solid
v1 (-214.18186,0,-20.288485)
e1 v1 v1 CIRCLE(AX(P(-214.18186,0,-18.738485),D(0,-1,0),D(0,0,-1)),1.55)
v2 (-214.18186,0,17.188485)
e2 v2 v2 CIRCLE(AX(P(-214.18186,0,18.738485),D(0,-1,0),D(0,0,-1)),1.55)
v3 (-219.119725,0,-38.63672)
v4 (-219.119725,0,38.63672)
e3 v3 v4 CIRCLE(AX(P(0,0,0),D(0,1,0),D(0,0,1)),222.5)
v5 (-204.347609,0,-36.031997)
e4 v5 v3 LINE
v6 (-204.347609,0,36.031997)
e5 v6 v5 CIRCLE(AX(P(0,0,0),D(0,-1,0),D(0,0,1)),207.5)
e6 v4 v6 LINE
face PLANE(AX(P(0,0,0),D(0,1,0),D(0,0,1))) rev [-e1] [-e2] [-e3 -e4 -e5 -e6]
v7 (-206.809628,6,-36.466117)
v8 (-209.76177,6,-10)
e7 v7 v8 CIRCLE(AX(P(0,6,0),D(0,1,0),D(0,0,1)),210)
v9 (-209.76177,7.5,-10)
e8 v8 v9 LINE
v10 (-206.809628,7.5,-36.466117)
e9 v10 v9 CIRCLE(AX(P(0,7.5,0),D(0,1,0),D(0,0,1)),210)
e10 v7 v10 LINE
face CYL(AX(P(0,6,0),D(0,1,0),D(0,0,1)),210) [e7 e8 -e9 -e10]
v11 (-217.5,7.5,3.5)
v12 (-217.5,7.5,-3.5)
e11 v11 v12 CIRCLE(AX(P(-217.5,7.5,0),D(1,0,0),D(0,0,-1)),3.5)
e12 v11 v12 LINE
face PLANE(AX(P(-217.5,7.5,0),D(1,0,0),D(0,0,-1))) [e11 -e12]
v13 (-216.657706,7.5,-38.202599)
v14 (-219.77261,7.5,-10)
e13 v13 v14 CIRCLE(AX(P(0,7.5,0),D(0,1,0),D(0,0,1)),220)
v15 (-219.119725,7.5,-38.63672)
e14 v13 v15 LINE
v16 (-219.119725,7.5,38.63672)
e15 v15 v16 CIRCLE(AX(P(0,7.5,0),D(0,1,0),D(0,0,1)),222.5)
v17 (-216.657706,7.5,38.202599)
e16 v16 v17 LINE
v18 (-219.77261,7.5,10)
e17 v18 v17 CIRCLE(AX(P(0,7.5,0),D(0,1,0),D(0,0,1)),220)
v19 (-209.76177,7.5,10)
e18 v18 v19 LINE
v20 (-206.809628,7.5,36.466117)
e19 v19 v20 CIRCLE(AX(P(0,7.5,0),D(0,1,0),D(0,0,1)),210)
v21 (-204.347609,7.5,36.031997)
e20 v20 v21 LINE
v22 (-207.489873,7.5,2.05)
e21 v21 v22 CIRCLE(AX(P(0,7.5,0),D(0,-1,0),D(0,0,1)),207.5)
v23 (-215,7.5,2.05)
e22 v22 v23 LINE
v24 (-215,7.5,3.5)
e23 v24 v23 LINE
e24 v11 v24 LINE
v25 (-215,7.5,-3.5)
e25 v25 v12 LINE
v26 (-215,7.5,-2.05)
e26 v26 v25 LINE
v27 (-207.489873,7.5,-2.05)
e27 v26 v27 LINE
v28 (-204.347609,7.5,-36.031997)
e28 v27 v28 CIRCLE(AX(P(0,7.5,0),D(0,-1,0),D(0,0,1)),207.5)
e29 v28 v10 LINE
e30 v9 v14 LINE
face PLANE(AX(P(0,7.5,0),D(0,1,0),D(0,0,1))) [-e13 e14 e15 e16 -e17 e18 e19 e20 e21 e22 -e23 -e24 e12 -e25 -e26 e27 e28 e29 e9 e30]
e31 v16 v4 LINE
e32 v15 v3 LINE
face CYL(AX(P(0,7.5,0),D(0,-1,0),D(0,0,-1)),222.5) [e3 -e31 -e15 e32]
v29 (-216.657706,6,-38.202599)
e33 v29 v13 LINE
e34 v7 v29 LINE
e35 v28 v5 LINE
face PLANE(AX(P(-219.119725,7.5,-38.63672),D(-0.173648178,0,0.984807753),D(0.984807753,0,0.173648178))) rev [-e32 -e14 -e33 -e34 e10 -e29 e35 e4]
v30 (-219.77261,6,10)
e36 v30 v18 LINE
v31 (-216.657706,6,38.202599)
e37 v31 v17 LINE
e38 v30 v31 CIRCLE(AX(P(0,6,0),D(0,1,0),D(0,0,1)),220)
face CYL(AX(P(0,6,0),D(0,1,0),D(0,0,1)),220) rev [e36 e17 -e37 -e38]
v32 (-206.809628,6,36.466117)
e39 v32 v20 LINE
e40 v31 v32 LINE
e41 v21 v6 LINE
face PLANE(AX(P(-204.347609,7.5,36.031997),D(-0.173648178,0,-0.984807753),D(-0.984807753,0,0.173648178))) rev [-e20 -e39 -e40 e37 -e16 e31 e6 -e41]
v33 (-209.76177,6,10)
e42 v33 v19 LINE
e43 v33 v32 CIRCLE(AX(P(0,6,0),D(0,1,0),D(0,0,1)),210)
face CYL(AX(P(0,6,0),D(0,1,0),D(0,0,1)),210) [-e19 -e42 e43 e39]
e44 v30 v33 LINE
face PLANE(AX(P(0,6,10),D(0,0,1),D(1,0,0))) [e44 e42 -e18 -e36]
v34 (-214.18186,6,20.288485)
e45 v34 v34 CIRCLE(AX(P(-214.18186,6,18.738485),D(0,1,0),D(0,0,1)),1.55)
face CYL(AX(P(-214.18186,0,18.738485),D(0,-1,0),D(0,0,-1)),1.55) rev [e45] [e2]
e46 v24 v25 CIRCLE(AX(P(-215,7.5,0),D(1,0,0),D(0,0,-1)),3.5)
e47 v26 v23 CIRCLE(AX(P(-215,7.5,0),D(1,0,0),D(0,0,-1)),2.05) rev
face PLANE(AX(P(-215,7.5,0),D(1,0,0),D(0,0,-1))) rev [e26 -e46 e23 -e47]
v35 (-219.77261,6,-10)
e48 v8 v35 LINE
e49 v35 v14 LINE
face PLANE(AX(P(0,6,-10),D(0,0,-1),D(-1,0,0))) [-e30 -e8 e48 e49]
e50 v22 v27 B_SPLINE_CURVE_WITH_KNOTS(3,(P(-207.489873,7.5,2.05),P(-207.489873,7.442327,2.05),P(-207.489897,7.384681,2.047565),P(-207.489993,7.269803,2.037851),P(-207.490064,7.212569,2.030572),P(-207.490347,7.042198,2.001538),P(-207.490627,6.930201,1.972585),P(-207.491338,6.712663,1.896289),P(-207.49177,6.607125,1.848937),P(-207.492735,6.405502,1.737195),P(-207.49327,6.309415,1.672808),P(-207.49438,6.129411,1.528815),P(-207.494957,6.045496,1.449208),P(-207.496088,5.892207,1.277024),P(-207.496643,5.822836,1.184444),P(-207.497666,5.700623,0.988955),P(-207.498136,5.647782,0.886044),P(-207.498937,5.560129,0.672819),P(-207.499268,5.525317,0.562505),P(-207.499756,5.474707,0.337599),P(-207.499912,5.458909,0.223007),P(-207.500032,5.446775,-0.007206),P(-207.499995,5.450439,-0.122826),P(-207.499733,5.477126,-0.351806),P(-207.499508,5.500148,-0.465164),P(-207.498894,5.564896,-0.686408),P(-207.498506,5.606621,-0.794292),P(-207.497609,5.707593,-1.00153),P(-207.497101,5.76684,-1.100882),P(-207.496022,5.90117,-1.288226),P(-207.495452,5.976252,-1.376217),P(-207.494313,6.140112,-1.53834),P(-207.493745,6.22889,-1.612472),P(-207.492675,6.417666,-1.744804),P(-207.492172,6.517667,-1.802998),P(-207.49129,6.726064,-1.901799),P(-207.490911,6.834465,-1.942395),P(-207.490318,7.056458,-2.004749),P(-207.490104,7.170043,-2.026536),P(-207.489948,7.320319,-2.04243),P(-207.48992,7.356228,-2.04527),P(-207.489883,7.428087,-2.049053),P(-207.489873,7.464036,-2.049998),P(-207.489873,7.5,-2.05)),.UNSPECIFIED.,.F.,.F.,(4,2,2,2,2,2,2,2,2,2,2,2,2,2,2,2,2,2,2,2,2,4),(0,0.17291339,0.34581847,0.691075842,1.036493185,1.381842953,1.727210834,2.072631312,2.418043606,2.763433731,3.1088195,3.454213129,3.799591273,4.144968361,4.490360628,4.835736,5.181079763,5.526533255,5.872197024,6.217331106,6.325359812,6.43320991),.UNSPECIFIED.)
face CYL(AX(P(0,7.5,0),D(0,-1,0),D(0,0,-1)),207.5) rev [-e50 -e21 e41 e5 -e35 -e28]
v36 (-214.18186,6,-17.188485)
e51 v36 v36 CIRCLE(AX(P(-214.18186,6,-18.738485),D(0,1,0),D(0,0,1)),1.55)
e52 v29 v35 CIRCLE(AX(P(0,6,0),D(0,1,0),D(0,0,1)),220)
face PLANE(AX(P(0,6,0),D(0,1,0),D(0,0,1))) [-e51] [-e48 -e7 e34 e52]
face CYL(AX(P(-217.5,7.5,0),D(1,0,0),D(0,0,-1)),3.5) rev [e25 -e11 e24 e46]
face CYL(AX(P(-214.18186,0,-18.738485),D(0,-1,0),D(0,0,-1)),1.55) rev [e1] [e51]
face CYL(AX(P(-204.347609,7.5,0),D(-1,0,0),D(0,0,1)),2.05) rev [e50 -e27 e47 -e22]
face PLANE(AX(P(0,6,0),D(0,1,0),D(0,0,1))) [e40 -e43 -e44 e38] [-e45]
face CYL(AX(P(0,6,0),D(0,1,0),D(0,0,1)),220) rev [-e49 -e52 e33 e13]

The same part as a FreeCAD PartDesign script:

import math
import FreeCAD as App
import Part
import Sketcher
Q = App.Units.Quantity

doc = App.newDocument("Part")
params = doc.addObject("Spreadsheet::Sheet", "Params")
for row, (alias, value) in enumerate([
    ("sketch1_radius", "222.5 mm"),
    ("sketch1_radius2", "207.5 mm"),
    ("pad1_length", "7.5 mm"),
    ("sketch2_radius", "220 mm"),
    ("sketch2_radius2", "210 mm"),
    ("pocket1_length", "1.5 mm"),
    ("sketch3_diameter", "7 mm"),
    ("pocket2_length", "2.5 mm"),
    ("sketch4_diameter", "4.1 mm"),
    ("sketch5_diameter", "3.1 mm"),
    ("hole_diameter", "3.1 mm"),
], start=1):
    params.set(f"A{row}", alias)
    params.set(f"B{row}", "=" + value)
    params.setAlias(f"B{row}", alias)

body = doc.addObject("PartDesign::Body", "Body")

sketch1 = body.newObject("Sketcher::SketchObject", "Sketch")
sketch1.AttachmentSupport = (doc.getObject("XZ_Plane"), [""])
sketch1.MapMode = "FlatFace"
sketch1.addGeometry(Part.LineSegment(App.Vector(-204, -36, 0), App.Vector(-219, -39, 0)), False)
sketch1.addGeometry(Part.ArcOfCircle(Part.Circle(App.Vector(0, 0, 0), App.Vector(0, 0, 1), 222), math.radians(170), math.radians(190)), False)
sketch1.addGeometry(Part.LineSegment(App.Vector(-219, 39, 0), App.Vector(-204, 36, 0)), False)
sketch1.addGeometry(Part.ArcOfCircle(Part.Circle(App.Vector(0, 0, 0), App.Vector(0, 0, 1), 207), math.radians(170), math.radians(190)), False)
sketch1.addConstraint(Sketcher.Constraint("Coincident", 0, 2, 1, 2))
sketch1.addConstraint(Sketcher.Constraint("Coincident", 1, 1, 2, 1))
sketch1.addConstraint(Sketcher.Constraint("Coincident", 2, 2, 3, 1))
sketch1.addConstraint(Sketcher.Constraint("Coincident", 3, 2, 0, 1))
sketch1.addConstraint(Sketcher.Constraint("Coincident", 1, 3, -1, 1))
sketch1.addConstraint(Sketcher.Constraint("Coincident", 3, 3, -1, 1))
sketch1.addConstraint(Sketcher.Constraint("Vertical", 0, 2, 1, 1))
sketch1.addConstraint(Sketcher.Constraint("Vertical", 2, 2, 3, 2))
sketch1.addConstraint(Sketcher.Constraint("Radius", 1, 222.5))
sketch1.addConstraint(Sketcher.Constraint("Radius", 3, 207.5))
sketch1.addConstraint(Sketcher.Constraint("Angle", 0, Q("-170 deg")))
sketch1.addConstraint(Sketcher.Constraint("DistanceY", 0, 2, -1, 1, 38.63672))
sketch1.setExpression("Constraints[8]", "Params.sketch1_radius")
sketch1.setExpression("Constraints[9]", "Params.sketch1_radius2")
pad1 = body.newObject("PartDesign::Pad", "Pad")
pad1.Profile = sketch1
pad1.setExpression("Length", "Params.pad1_length")
pad1.Reversed = True

sketch2 = body.newObject("Sketcher::SketchObject", "Sketch001")
sketch2.AttachmentSupport = (doc.getObject("XZ_Plane"), [""])
sketch2.MapMode = "FlatFace"
sketch2.AttachmentOffset = App.Placement(App.Vector(0, 0, -7.5), App.Rotation())
sketch2.addGeometry(Part.LineSegment(App.Vector(-207, -36, 0), App.Vector(-217, -38, 0)), False)
sketch2.addGeometry(Part.ArcOfCircle(Part.Circle(App.Vector(0, 0, 0), App.Vector(0, 0, 1), 220), math.radians(-177.39), math.radians(-170)), False)
sketch2.addGeometry(Part.LineSegment(App.Vector(-220, -10, 0), App.Vector(-210, -10, 0)), False)
sketch2.addGeometry(Part.ArcOfCircle(Part.Circle(App.Vector(0, 0, 0), App.Vector(0, 0, 1), 210), math.radians(-177.27), math.radians(-170)), False)
sketch2.addGeometry(Part.LineSegment(App.Vector(-210, 10, 0), App.Vector(-220, 10, 0)), False)
sketch2.addGeometry(Part.ArcOfCircle(Part.Circle(App.Vector(0, 0, 0), App.Vector(0, 0, 1), 220), math.radians(170), math.radians(177.39)), False)
sketch2.addGeometry(Part.LineSegment(App.Vector(-217, 38, 0), App.Vector(-207, 36, 0)), False)
sketch2.addGeometry(Part.ArcOfCircle(Part.Circle(App.Vector(0, 0, 0), App.Vector(0, 0, 1), 210), math.radians(170), math.radians(177.27)), False)
sketch2.addConstraint(Sketcher.Constraint("Coincident", 0, 2, 1, 2))
sketch2.addConstraint(Sketcher.Constraint("Coincident", 1, 1, 2, 1))
sketch2.addConstraint(Sketcher.Constraint("Coincident", 2, 2, 3, 1))
sketch2.addConstraint(Sketcher.Constraint("Coincident", 3, 2, 0, 1))
sketch2.addConstraint(Sketcher.Constraint("Coincident", 4, 2, 5, 2))
sketch2.addConstraint(Sketcher.Constraint("Coincident", 5, 1, 6, 1))
sketch2.addConstraint(Sketcher.Constraint("Coincident", 6, 2, 7, 1))
sketch2.addConstraint(Sketcher.Constraint("Coincident", 7, 2, 4, 1))
sketch2.addConstraint(Sketcher.Constraint("Horizontal", 2))
sketch2.addConstraint(Sketcher.Constraint("Horizontal", 4))
sketch2.addConstraint(Sketcher.Constraint("Coincident", 1, 3, -1, 1))
sketch2.addConstraint(Sketcher.Constraint("Coincident", 3, 3, -1, 1))
sketch2.addConstraint(Sketcher.Constraint("Coincident", 5, 3, -1, 1))
sketch2.addConstraint(Sketcher.Constraint("Coincident", 7, 3, -1, 1))
sketch2.addConstraint(Sketcher.Constraint("Equal", 1, 5))
sketch2.addConstraint(Sketcher.Constraint("Equal", 3, 7))
sketch2.addConstraint(Sketcher.Constraint("Vertical", 1, 1, 4, 2))
sketch2.addConstraint(Sketcher.Constraint("Vertical", 0, 2, 5, 1))
sketch2.addConstraint(Sketcher.Constraint("Vertical", 3, 2, 6, 2))
sketch2.addConstraint(Sketcher.Constraint("Radius", 1, 220.0))
sketch2.addConstraint(Sketcher.Constraint("Radius", 3, 210.0))
sketch2.addConstraint(Sketcher.Constraint("Angle", 0, Q("-170 deg")))
sketch2.addConstraint(Sketcher.Constraint("DistanceY", 1, 1, -1, 1, 10.0))
sketch2.addConstraint(Sketcher.Constraint("DistanceY", 0, 2, -1, 1, 38.202599))
sketch2.setExpression("Constraints[19]", "Params.sketch2_radius")
sketch2.setExpression("Constraints[20]", "Params.sketch2_radius2")
pocket1 = body.newObject("PartDesign::Pocket", "Pocket")
pocket1.Profile = sketch2
pocket1.setExpression("Length", "Params.pocket1_length")
pocket1.Reversed = True

sketch3 = body.newObject("Sketcher::SketchObject", "Sketch002")
sketch3.AttachmentSupport = (doc.getObject("YZ_Plane"), [""])
sketch3.MapMode = "FlatFace"
sketch3.AttachmentOffset = App.Placement(App.Vector(0, 0, -215), App.Rotation())
sketch3.addGeometry(Part.Circle(App.Vector(7.5, 0, 0), App.Vector(0, 0, 1), 3.5), False)
sketch3.addConstraint(Sketcher.Constraint("PointOnObject", 0, 3, -1))
sketch3.addConstraint(Sketcher.Constraint("Diameter", 0, 7.0))
sketch3.addConstraint(Sketcher.Constraint("DistanceX", -1, 1, 0, 3, 7.5))
sketch3.setExpression("Constraints[1]", "Params.sketch3_diameter")
pocket2 = body.newObject("PartDesign::Pocket", "Pocket001")
pocket2.Profile = sketch3
pocket2.setExpression("Length", "Params.pocket2_length")

sketch4 = body.newObject("Sketcher::SketchObject", "Sketch003")
sketch4.AttachmentSupport = (doc.getObject("YZ_Plane"), [""])
sketch4.MapMode = "FlatFace"
sketch4.AttachmentOffset = App.Placement(App.Vector(0, 0, -215), App.Rotation())
sketch4.addGeometry(Part.Circle(App.Vector(7.5, 0, 0), App.Vector(0, 0, 1), 2), False)
sketch4.addConstraint(Sketcher.Constraint("PointOnObject", 0, 3, -1))
sketch4.addConstraint(Sketcher.Constraint("Diameter", 0, 4.1))
sketch4.addConstraint(Sketcher.Constraint("DistanceX", -1, 1, 0, 3, 7.5))
sketch4.setExpression("Constraints[1]", "Params.sketch4_diameter")
pocket3 = body.newObject("PartDesign::Pocket", "Pocket002")
pocket3.Profile = sketch4
pocket3.Type = "ThroughAll"
pocket3.Reversed = True

sketch5 = body.newObject("Sketcher::SketchObject", "Sketch004")
sketch5.AttachmentSupport = (doc.getObject("XZ_Plane"), [""])
sketch5.MapMode = "FlatFace"
sketch5.addGeometry(Part.Circle(App.Vector(-214.2, 18.7, 0), App.Vector(0, 0, 1), 1.6), False)
sketch5.addGeometry(Part.Circle(App.Vector(-214.2, -18.7, 0), App.Vector(0, 0, 1), 1.6), False)
sketch5.addConstraint(Sketcher.Constraint("Equal", 0, 1))
sketch5.addConstraint(Sketcher.Constraint("Symmetric", 0, 3, 1, 3, -1))
sketch5.addConstraint(Sketcher.Constraint("Diameter", 0, 3.1))
sketch5.addConstraint(Sketcher.Constraint("DistanceX", 0, 3, -1, 1, 214.18186))
sketch5.addConstraint(Sketcher.Constraint("DistanceY", 1, 3, 0, 3, 37.476969))
sketch5.setExpression("Constraints[2]", "Params.sketch5_diameter")
doc.recompute()
hole = body.newObject("PartDesign::Hole", "Hole")
hole.Profile = sketch5
hole.ThreadType = "None"
hole.setExpression("Diameter", "Params.hole_diameter")
hole.DepthType = "ThroughAll"

doc.recompute()
